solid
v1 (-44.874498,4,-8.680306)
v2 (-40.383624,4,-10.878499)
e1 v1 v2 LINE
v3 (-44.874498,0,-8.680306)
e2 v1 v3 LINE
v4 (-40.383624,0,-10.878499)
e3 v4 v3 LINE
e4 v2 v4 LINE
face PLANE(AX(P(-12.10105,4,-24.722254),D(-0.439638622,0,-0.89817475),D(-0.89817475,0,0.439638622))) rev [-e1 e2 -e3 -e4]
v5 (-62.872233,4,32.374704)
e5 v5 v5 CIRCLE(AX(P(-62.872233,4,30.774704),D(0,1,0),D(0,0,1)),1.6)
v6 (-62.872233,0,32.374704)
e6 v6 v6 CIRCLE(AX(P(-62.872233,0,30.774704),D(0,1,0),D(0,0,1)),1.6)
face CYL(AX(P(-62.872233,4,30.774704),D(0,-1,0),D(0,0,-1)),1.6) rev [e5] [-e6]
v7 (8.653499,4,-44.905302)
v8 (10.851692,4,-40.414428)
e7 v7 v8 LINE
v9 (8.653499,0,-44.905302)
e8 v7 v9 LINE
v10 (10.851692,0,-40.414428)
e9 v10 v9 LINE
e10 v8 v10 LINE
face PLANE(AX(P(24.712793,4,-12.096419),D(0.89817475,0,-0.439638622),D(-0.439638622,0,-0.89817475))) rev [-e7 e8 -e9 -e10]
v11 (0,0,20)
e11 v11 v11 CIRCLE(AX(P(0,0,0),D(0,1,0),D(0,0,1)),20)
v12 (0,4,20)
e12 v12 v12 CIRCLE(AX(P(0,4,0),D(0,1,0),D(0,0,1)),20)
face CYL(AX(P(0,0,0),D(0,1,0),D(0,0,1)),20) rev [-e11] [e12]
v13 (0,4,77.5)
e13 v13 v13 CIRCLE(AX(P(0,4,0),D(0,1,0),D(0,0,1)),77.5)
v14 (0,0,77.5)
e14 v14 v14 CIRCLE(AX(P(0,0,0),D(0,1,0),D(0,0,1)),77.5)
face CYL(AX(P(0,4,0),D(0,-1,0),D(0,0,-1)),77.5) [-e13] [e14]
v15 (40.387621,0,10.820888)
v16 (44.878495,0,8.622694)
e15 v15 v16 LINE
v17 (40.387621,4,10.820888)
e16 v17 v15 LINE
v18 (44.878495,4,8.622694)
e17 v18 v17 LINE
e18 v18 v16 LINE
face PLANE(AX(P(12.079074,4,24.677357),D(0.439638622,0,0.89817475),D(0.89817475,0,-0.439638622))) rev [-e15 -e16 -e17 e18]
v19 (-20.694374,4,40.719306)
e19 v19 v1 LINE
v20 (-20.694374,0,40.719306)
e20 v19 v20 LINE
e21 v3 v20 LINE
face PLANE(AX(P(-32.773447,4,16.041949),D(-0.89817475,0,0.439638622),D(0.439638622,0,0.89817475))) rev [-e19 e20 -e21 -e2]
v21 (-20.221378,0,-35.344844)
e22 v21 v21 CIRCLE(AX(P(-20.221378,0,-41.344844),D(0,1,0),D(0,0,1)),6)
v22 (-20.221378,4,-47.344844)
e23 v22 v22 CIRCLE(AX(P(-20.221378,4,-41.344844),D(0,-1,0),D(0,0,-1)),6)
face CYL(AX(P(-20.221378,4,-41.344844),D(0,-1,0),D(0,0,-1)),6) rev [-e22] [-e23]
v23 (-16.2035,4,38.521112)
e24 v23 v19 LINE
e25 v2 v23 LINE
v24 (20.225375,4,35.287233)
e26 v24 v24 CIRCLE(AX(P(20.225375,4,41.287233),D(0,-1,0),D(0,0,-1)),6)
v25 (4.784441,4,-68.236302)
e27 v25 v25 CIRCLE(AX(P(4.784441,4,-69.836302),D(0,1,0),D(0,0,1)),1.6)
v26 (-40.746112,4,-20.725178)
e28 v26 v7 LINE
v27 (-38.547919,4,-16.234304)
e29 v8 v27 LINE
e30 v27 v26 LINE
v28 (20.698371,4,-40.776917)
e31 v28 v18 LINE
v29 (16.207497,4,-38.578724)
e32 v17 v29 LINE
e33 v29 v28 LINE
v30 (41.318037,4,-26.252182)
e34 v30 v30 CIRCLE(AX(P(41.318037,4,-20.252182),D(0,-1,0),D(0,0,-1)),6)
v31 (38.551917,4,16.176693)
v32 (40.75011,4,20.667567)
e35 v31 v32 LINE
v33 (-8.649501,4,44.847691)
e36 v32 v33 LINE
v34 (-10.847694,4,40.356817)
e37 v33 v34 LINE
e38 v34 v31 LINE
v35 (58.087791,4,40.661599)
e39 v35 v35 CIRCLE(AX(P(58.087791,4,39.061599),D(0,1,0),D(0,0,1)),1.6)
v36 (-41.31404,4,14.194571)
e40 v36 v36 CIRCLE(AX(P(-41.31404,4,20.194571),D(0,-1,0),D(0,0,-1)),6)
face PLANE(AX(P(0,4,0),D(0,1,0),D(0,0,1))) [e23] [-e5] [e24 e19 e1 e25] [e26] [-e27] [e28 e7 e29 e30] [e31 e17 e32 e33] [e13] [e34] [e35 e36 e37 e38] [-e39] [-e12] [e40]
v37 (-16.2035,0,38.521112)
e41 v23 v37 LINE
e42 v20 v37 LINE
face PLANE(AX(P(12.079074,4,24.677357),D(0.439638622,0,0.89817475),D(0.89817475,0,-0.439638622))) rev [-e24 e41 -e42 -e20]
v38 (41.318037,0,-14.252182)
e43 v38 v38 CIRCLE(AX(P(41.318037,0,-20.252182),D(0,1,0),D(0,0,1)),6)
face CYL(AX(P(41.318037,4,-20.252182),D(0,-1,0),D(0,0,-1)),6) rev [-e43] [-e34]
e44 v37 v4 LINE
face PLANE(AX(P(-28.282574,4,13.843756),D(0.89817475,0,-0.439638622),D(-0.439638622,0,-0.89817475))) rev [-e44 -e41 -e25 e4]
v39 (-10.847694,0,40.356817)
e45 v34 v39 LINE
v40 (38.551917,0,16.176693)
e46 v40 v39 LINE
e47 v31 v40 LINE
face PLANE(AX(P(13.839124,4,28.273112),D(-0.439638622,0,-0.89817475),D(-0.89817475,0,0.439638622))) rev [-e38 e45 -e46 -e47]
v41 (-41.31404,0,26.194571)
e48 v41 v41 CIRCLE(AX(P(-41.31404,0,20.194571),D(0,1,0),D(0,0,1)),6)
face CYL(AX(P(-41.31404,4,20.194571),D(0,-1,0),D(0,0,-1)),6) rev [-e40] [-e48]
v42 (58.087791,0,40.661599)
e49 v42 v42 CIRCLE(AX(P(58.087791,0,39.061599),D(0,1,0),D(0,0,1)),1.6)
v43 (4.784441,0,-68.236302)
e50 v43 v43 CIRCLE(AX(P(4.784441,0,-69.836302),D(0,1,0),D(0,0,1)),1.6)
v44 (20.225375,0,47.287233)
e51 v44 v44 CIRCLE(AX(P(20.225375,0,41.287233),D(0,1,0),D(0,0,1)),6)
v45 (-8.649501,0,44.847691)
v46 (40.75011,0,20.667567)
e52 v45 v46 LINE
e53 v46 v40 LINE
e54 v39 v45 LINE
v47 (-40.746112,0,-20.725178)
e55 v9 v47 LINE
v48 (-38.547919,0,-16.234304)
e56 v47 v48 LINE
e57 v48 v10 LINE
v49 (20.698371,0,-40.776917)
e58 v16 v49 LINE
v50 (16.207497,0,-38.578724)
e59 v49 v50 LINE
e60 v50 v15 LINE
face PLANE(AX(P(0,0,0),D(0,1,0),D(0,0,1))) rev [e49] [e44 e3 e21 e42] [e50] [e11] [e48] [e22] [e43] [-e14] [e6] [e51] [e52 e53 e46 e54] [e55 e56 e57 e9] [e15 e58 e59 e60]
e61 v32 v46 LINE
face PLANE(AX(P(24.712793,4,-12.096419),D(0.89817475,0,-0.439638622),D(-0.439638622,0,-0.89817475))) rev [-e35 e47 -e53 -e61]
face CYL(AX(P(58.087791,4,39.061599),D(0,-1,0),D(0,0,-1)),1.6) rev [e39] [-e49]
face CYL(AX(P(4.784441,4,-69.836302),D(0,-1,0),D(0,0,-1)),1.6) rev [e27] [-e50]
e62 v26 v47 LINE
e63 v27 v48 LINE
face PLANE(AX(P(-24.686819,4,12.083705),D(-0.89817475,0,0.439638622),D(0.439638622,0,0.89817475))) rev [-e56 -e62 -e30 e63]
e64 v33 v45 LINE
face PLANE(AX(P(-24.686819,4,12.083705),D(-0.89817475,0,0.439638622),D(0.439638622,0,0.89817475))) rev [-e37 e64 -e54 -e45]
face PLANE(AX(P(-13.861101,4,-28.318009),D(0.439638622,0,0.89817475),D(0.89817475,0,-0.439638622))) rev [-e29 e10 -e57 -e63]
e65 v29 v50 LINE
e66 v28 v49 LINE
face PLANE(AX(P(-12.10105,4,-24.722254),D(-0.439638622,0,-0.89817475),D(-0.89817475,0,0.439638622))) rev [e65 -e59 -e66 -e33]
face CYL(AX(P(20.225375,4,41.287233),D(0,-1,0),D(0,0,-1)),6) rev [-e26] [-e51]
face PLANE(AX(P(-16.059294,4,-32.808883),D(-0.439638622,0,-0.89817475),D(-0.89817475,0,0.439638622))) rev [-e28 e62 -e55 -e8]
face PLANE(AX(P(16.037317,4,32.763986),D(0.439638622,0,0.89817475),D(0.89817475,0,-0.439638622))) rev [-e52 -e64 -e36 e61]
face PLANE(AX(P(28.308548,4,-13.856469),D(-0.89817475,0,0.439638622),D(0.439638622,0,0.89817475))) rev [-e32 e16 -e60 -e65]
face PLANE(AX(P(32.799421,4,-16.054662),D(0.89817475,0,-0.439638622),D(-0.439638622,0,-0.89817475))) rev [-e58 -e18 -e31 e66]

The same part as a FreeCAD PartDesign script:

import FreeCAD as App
import Part
import Sketcher

V = App.Vector

doc = App.newDocument("Part")
body = doc.addObject("PartDesign::Body", "Body")

sketch1 = body.newObject("Sketcher::SketchObject", "Sketch")
sketch1.AttachmentSupport = (doc.getObject("XZ_Plane"), [""])
sketch1.MapMode = "FlatFace"
sketch1.addGeometry(Part.Circle(V(0, 0, 0), V(0, 0, 1), 77.5), False)
sketch1.addGeometry(Part.Circle(V(-62.9, 30.8, 0), V(0, 0, 1), 1.6), False)
sketch1.addGeometry(Part.Circle(V(4.8, -69.8, 0), V(0, 0, 1), 1.6), False)
sketch1.addGeometry(Part.Circle(V(58.1, 39.1, 0), V(0, 0, 1), 1.6), False)
sketch1.addConstraint(Sketcher.Constraint("Coincident", 0, 3, -1, 1))
sketch1.addConstraint(Sketcher.Constraint("Equal", 1, 2))
sketch1.addConstraint(Sketcher.Constraint("Equal", 2, 3))
sketch1.addConstraint(Sketcher.Constraint("Diameter", 0, 155.0))
sketch1.addConstraint(Sketcher.Constraint("Diameter", 1, 3.2))
sketch1.addConstraint(Sketcher.Constraint("DistanceY", -1, 1, 3, 3, 39.061599))
sketch1.addConstraint(Sketcher.Constraint("DistanceY", 2, 3, 3, 3, 108.897901))
sketch1.addConstraint(Sketcher.Constraint("DistanceX", -1, 1, 2, 3, 4.784441))
sketch1.addConstraint(Sketcher.Constraint("DistanceX", -1, 1, 3, 3, 58.087791))
sketch1.addConstraint(Sketcher.Constraint("DistanceX", 1, 3, -1, 1, 62.872233))
sketch1.addConstraint(Sketcher.Constraint("DistanceY", -1, 1, 1, 3, 30.774704))
pad1 = body.newObject("PartDesign::Pad", "Pad")
pad1.Profile = sketch1
pad1.Length = 4
pad1.Reversed = True

sketch2 = body.newObject("Sketcher::SketchObject", "Sketch001")
sketch2.AttachmentSupport = (doc.getObject("XZ_Plane"), [""])
sketch2.MapMode = "FlatFace"
sketch2.AttachmentOffset = App.Placement(V(0, 0, -4), App.Rotation())
sketch2.addGeometry(Part.Circle(V(0, 0, 0), V(0, 0, 1), 20), False)
sketch2.addConstraint(Sketcher.Constraint("Coincident", 0, 3, -1, 1))
sketch2.addConstraint(Sketcher.Constraint("Diameter", 0, 40.0))
pocket1 = body.newObject("PartDesign::Pocket", "Pocket")
pocket1.Profile = sketch2
pocket1.Type = "ThroughAll"
pocket1.Midplane = True

sketch3 = body.newObject("Sketcher::SketchObject", "Sketch002")
sketch3.AttachmentSupport = (doc.getObject("XZ_Plane"), [""])
sketch3.MapMode = "FlatFace"
sketch3.addGeometry(Part.Circle(V(-41.3, 20.2, 0), V(0, 0, 1), 6), False)
sketch3.addGeometry(Part.LineSegment(V(-20.7, 40.7, 0), V(-44.9, -8.7, 0)), False)
sketch3.addGeometry(Part.LineSegment(V(-44.9, -8.7, 0), V(-40.4, -10.9, 0)), False)
sketch3.addGeometry(Part.LineSegment(V(-40.4, -10.9, 0), V(-16.2, 38.5, 0)), False)
sketch3.addGeometry(Part.LineSegment(V(-16.2, 38.5, 0), V(-20.7, 40.7, 0)), False)
sketch3.addGeometry(Part.LineSegment(V(-10.8, 40.4, 0), V(38.6, 16.2, 0)), False)
sketch3.addGeometry(Part.LineSegment(V(38.6, 16.2, 0), V(40.8, 20.7, 0)), False)
sketch3.addGeometry(Part.LineSegment(V(40.8, 20.7, 0), V(16.1, 32.8, 0)), False)
sketch3.addGeometry(Part.LineSegment(V(16.1, 32.8, 0), V(-8.6, 44.8, 0)), False)
sketch3.addGeometry(Part.LineSegment(V(-8.6, 44.8, 0), V(-10.8, 40.4, 0)), False)
sketch3.addGeometry(Part.Circle(V(20.2, 41.3, 0), V(0, 0, 1), 6), False)
sketch3.addGeometry(Part.LineSegment(V(20.7, -40.8, 0), V(44.9, 8.6, 0)), False)
sketch3.addGeometry(Part.LineSegment(V(44.9, 8.6, 0), V(40.4, 10.8, 0)), False)
sketch3.addGeometry(Part.LineSegment(V(40.4, 10.8, 0), V(16.2, -38.6, 0)), False)
sketch3.addGeometry(Part.LineSegment(V(16.2, -38.6, 0), V(20.7, -40.8, 0)), False)
sketch3.addGeometry(Part.Circle(V(41.3, -20.3, 0), V(0, 0, 1), 6), False)
sketch3.addGeometry(Part.LineSegment(V(-40.7, -20.7, 0), V(8.7, -44.9, 0)), False)
sketch3.addGeometry(Part.LineSegment(V(8.7, -44.9, 0), V(10.9, -40.4, 0)), False)
sketch3.addGeometry(Part.LineSegment(V(10.9, -40.4, 0), V(-38.5, -16.2, 0)), False)
sketch3.addGeometry(Part.LineSegment(V(-38.5, -16.2, 0), V(-40.7, -20.7, 0)), False)
sketch3.addGeometry(Part.Circle(V(-20.2, -41.3, 0), V(0, 0, 1), 6), False)
sketch3.addConstraint(Sketcher.Constraint("Coincident", 1, 2, 2, 1))
sketch3.addConstraint(Sketcher.Constraint("Coincident", 2, 2, 3, 1))
sketch3.addConstraint(Sketcher.Constraint("Coincident", 3, 2, 4, 1))
sketch3.addConstraint(Sketcher.Constraint("Coincident", 4, 2, 1, 1))
sketch3.addConstraint(Sketcher.Constraint("Coincident", 5, 2, 6, 1))
sketch3.addConstraint(Sketcher.Constraint("Coincident", 6, 2, 7, 1))
sketch3.addConstraint(Sketcher.Constraint("Coincident", 7, 2, 8, 1))
sketch3.addConstraint(Sketcher.Constraint("Coincident", 8, 2, 9, 1))
sketch3.addConstraint(Sketcher.Constraint("Coincident", 9, 2, 5, 1))
sketch3.addConstraint(Sketcher.Constraint("Coincident", 11, 2, 12, 1))
sketch3.addConstraint(Sketcher.Constraint("Coincident", 12, 2, 13, 1))
sketch3.addConstraint(Sketcher.Constraint("Coincident", 13, 2, 14, 1))
sketch3.addConstraint(Sketcher.Constraint("Coincident", 14, 2, 11, 1))
sketch3.addConstraint(Sketcher.Constraint("Coincident", 16, 2, 17, 1))
sketch3.addConstraint(Sketcher.Constraint("Coincident", 17, 2, 18, 1))
sketch3.addConstraint(Sketcher.Constraint("Coincident", 18, 2, 19, 1))
sketch3.addConstraint(Sketcher.Constraint("Coincident", 19, 2, 16, 1))
sketch3.addConstraint(Sketcher.Constraint("Equal", 0, 10))
sketch3.addConstraint(Sketcher.Constraint("Equal", 10, 15))
sketch3.addConstraint(Sketcher.Constraint("Equal", 15, 20))
sketch3.addConstraint(Sketcher.Constraint("Perpendicular", 1, 2))
sketch3.addConstraint(Sketcher.Constraint("Perpendicular", 2, 3))
sketch3.addConstraint(Sketcher.Constraint("Perpendicular", 3, 4))
sketch3.addConstraint(Sketcher.Constraint("Parallel", 4, 5))
sketch3.addConstraint(Sketcher.Constraint("Perpendicular", 5, 6))
sketch3.addConstraint(Sketcher.Constraint("Perpendicular", 6, 7))
sketch3.addConstraint(Sketcher.Constraint("Parallel", 7, 8))
sketch3.addConstraint(Sketcher.Constraint("Perpendicular", 8, 9))
sketch3.addConstraint(Sketcher.Constraint("Parallel", 9, 11))
sketch3.addConstraint(Sketcher.Constraint("Perpendicular", 11, 12))
sketch3.addConstraint(Sketcher.Constraint("Perpendicular", 12, 13))
sketch3.addConstraint(Sketcher.Constraint("Perpendicular", 13, 14))
sketch3.addConstraint(Sketcher.Constraint("Parallel", 14, 16))
sketch3.addConstraint(Sketcher.Constraint("Perpendicular", 16, 17))
sketch3.addConstraint(Sketcher.Constraint("Perpendicular", 17, 18))
sketch3.addConstraint(Sketcher.Constraint("Perpendicular", 18, 19))
sketch3.addConstraint(Sketcher.Constraint("Equal", 3, 5))
sketch3.addConstraint(Sketcher.Constraint("Equal", 4, 6))
sketch3.addConstraint(Sketcher.Constraint("Equal", 7, 8))
sketch3.addConstraint(Sketcher.Constraint("Equal", 5, 11))
sketch3.addConstraint(Sketcher.Constraint("Equal", 9, 12))
sketch3.addConstraint(Sketcher.Constraint("Equal", 13, 16))
sketch3.addConstraint(Sketcher.Constraint("Equal", 14, 17))
sketch3.addConstraint(Sketcher.Constraint("Diameter", 0, 12.0))
sketch3.addConstraint(Sketcher.Constraint("Distance", 1, 55.0))
sketch3.addConstraint(Sketcher.Constraint("Distance", 2, 5.0))
sketch3.addConstraint(Sketcher.Constraint("DistanceX", 2, 2, 10, 3, 60.608999))
sketch3.addConstraint(Sketcher.Constraint("DistanceX", 3, 2, 8, 2, 7.553998))
sketch3.addConstraint(Sketcher.Constraint("DistanceX", 9, 2, 7, 2, 26.897999))
sketch3.addConstraint(Sketcher.Constraint("DistanceY", 11, 2, 5, 2, 7.553998))
sketch3.addConstraint(Sketcher.Constraint("DistanceX", 16, 2, 13, 2, 7.553998))
sketch3.addConstraint(Sketcher.Constraint("DistanceY", 18, 2, 1, 2, 7.553998))
sketch3.addConstraint(Sketcher.Constraint("DistanceY", 2, 2, -1, 1, 10.878499))
sketch3.addConstraint(Sketcher.Constraint("DistanceX", 3, 2, -1, 1, 16.2035))
sketch3.addConstraint(Sketcher.Constraint("DistanceX", -1, 1, 16, 2, 8.653499))
sketch3.addConstraint(Sketcher.Constraint("DistanceX", 0, 3, -1, 1, 41.31404))
sketch3.addConstraint(Sketcher.Constraint("DistanceY", -1, 1, 0, 3, 20.194571))
sketch3.addConstraint(Sketcher.Constraint("DistanceY", -1, 1, 7, 2, 32.757629))
sketch3.addConstraint(Sketcher.Constraint("DistanceY", 0, 3, 10, 3, 21.092662))
sketch3.addConstraint(Sketcher.Constraint("DistanceX", 10, 3, 15, 3, 21.092662))
sketch3.addConstraint(Sketcher.Constraint("DistanceX", 0, 3, 20, 3, 21.092662))
sketch3.addConstraint(Sketcher.Constraint("DistanceY", 20, 3, 15, 3, 21.092662))
sketch3.addConstraint(Sketcher.Constraint("DistanceY", 20, 3, 1, 2, 32.664538))
pocket2 = body.newObject("PartDesign::Pocket", "Pocket001")
pocket2.Profile = sketch3
pocket2.Type = "ThroughAll"
pocket2.Midplane = True

doc.recompute()
